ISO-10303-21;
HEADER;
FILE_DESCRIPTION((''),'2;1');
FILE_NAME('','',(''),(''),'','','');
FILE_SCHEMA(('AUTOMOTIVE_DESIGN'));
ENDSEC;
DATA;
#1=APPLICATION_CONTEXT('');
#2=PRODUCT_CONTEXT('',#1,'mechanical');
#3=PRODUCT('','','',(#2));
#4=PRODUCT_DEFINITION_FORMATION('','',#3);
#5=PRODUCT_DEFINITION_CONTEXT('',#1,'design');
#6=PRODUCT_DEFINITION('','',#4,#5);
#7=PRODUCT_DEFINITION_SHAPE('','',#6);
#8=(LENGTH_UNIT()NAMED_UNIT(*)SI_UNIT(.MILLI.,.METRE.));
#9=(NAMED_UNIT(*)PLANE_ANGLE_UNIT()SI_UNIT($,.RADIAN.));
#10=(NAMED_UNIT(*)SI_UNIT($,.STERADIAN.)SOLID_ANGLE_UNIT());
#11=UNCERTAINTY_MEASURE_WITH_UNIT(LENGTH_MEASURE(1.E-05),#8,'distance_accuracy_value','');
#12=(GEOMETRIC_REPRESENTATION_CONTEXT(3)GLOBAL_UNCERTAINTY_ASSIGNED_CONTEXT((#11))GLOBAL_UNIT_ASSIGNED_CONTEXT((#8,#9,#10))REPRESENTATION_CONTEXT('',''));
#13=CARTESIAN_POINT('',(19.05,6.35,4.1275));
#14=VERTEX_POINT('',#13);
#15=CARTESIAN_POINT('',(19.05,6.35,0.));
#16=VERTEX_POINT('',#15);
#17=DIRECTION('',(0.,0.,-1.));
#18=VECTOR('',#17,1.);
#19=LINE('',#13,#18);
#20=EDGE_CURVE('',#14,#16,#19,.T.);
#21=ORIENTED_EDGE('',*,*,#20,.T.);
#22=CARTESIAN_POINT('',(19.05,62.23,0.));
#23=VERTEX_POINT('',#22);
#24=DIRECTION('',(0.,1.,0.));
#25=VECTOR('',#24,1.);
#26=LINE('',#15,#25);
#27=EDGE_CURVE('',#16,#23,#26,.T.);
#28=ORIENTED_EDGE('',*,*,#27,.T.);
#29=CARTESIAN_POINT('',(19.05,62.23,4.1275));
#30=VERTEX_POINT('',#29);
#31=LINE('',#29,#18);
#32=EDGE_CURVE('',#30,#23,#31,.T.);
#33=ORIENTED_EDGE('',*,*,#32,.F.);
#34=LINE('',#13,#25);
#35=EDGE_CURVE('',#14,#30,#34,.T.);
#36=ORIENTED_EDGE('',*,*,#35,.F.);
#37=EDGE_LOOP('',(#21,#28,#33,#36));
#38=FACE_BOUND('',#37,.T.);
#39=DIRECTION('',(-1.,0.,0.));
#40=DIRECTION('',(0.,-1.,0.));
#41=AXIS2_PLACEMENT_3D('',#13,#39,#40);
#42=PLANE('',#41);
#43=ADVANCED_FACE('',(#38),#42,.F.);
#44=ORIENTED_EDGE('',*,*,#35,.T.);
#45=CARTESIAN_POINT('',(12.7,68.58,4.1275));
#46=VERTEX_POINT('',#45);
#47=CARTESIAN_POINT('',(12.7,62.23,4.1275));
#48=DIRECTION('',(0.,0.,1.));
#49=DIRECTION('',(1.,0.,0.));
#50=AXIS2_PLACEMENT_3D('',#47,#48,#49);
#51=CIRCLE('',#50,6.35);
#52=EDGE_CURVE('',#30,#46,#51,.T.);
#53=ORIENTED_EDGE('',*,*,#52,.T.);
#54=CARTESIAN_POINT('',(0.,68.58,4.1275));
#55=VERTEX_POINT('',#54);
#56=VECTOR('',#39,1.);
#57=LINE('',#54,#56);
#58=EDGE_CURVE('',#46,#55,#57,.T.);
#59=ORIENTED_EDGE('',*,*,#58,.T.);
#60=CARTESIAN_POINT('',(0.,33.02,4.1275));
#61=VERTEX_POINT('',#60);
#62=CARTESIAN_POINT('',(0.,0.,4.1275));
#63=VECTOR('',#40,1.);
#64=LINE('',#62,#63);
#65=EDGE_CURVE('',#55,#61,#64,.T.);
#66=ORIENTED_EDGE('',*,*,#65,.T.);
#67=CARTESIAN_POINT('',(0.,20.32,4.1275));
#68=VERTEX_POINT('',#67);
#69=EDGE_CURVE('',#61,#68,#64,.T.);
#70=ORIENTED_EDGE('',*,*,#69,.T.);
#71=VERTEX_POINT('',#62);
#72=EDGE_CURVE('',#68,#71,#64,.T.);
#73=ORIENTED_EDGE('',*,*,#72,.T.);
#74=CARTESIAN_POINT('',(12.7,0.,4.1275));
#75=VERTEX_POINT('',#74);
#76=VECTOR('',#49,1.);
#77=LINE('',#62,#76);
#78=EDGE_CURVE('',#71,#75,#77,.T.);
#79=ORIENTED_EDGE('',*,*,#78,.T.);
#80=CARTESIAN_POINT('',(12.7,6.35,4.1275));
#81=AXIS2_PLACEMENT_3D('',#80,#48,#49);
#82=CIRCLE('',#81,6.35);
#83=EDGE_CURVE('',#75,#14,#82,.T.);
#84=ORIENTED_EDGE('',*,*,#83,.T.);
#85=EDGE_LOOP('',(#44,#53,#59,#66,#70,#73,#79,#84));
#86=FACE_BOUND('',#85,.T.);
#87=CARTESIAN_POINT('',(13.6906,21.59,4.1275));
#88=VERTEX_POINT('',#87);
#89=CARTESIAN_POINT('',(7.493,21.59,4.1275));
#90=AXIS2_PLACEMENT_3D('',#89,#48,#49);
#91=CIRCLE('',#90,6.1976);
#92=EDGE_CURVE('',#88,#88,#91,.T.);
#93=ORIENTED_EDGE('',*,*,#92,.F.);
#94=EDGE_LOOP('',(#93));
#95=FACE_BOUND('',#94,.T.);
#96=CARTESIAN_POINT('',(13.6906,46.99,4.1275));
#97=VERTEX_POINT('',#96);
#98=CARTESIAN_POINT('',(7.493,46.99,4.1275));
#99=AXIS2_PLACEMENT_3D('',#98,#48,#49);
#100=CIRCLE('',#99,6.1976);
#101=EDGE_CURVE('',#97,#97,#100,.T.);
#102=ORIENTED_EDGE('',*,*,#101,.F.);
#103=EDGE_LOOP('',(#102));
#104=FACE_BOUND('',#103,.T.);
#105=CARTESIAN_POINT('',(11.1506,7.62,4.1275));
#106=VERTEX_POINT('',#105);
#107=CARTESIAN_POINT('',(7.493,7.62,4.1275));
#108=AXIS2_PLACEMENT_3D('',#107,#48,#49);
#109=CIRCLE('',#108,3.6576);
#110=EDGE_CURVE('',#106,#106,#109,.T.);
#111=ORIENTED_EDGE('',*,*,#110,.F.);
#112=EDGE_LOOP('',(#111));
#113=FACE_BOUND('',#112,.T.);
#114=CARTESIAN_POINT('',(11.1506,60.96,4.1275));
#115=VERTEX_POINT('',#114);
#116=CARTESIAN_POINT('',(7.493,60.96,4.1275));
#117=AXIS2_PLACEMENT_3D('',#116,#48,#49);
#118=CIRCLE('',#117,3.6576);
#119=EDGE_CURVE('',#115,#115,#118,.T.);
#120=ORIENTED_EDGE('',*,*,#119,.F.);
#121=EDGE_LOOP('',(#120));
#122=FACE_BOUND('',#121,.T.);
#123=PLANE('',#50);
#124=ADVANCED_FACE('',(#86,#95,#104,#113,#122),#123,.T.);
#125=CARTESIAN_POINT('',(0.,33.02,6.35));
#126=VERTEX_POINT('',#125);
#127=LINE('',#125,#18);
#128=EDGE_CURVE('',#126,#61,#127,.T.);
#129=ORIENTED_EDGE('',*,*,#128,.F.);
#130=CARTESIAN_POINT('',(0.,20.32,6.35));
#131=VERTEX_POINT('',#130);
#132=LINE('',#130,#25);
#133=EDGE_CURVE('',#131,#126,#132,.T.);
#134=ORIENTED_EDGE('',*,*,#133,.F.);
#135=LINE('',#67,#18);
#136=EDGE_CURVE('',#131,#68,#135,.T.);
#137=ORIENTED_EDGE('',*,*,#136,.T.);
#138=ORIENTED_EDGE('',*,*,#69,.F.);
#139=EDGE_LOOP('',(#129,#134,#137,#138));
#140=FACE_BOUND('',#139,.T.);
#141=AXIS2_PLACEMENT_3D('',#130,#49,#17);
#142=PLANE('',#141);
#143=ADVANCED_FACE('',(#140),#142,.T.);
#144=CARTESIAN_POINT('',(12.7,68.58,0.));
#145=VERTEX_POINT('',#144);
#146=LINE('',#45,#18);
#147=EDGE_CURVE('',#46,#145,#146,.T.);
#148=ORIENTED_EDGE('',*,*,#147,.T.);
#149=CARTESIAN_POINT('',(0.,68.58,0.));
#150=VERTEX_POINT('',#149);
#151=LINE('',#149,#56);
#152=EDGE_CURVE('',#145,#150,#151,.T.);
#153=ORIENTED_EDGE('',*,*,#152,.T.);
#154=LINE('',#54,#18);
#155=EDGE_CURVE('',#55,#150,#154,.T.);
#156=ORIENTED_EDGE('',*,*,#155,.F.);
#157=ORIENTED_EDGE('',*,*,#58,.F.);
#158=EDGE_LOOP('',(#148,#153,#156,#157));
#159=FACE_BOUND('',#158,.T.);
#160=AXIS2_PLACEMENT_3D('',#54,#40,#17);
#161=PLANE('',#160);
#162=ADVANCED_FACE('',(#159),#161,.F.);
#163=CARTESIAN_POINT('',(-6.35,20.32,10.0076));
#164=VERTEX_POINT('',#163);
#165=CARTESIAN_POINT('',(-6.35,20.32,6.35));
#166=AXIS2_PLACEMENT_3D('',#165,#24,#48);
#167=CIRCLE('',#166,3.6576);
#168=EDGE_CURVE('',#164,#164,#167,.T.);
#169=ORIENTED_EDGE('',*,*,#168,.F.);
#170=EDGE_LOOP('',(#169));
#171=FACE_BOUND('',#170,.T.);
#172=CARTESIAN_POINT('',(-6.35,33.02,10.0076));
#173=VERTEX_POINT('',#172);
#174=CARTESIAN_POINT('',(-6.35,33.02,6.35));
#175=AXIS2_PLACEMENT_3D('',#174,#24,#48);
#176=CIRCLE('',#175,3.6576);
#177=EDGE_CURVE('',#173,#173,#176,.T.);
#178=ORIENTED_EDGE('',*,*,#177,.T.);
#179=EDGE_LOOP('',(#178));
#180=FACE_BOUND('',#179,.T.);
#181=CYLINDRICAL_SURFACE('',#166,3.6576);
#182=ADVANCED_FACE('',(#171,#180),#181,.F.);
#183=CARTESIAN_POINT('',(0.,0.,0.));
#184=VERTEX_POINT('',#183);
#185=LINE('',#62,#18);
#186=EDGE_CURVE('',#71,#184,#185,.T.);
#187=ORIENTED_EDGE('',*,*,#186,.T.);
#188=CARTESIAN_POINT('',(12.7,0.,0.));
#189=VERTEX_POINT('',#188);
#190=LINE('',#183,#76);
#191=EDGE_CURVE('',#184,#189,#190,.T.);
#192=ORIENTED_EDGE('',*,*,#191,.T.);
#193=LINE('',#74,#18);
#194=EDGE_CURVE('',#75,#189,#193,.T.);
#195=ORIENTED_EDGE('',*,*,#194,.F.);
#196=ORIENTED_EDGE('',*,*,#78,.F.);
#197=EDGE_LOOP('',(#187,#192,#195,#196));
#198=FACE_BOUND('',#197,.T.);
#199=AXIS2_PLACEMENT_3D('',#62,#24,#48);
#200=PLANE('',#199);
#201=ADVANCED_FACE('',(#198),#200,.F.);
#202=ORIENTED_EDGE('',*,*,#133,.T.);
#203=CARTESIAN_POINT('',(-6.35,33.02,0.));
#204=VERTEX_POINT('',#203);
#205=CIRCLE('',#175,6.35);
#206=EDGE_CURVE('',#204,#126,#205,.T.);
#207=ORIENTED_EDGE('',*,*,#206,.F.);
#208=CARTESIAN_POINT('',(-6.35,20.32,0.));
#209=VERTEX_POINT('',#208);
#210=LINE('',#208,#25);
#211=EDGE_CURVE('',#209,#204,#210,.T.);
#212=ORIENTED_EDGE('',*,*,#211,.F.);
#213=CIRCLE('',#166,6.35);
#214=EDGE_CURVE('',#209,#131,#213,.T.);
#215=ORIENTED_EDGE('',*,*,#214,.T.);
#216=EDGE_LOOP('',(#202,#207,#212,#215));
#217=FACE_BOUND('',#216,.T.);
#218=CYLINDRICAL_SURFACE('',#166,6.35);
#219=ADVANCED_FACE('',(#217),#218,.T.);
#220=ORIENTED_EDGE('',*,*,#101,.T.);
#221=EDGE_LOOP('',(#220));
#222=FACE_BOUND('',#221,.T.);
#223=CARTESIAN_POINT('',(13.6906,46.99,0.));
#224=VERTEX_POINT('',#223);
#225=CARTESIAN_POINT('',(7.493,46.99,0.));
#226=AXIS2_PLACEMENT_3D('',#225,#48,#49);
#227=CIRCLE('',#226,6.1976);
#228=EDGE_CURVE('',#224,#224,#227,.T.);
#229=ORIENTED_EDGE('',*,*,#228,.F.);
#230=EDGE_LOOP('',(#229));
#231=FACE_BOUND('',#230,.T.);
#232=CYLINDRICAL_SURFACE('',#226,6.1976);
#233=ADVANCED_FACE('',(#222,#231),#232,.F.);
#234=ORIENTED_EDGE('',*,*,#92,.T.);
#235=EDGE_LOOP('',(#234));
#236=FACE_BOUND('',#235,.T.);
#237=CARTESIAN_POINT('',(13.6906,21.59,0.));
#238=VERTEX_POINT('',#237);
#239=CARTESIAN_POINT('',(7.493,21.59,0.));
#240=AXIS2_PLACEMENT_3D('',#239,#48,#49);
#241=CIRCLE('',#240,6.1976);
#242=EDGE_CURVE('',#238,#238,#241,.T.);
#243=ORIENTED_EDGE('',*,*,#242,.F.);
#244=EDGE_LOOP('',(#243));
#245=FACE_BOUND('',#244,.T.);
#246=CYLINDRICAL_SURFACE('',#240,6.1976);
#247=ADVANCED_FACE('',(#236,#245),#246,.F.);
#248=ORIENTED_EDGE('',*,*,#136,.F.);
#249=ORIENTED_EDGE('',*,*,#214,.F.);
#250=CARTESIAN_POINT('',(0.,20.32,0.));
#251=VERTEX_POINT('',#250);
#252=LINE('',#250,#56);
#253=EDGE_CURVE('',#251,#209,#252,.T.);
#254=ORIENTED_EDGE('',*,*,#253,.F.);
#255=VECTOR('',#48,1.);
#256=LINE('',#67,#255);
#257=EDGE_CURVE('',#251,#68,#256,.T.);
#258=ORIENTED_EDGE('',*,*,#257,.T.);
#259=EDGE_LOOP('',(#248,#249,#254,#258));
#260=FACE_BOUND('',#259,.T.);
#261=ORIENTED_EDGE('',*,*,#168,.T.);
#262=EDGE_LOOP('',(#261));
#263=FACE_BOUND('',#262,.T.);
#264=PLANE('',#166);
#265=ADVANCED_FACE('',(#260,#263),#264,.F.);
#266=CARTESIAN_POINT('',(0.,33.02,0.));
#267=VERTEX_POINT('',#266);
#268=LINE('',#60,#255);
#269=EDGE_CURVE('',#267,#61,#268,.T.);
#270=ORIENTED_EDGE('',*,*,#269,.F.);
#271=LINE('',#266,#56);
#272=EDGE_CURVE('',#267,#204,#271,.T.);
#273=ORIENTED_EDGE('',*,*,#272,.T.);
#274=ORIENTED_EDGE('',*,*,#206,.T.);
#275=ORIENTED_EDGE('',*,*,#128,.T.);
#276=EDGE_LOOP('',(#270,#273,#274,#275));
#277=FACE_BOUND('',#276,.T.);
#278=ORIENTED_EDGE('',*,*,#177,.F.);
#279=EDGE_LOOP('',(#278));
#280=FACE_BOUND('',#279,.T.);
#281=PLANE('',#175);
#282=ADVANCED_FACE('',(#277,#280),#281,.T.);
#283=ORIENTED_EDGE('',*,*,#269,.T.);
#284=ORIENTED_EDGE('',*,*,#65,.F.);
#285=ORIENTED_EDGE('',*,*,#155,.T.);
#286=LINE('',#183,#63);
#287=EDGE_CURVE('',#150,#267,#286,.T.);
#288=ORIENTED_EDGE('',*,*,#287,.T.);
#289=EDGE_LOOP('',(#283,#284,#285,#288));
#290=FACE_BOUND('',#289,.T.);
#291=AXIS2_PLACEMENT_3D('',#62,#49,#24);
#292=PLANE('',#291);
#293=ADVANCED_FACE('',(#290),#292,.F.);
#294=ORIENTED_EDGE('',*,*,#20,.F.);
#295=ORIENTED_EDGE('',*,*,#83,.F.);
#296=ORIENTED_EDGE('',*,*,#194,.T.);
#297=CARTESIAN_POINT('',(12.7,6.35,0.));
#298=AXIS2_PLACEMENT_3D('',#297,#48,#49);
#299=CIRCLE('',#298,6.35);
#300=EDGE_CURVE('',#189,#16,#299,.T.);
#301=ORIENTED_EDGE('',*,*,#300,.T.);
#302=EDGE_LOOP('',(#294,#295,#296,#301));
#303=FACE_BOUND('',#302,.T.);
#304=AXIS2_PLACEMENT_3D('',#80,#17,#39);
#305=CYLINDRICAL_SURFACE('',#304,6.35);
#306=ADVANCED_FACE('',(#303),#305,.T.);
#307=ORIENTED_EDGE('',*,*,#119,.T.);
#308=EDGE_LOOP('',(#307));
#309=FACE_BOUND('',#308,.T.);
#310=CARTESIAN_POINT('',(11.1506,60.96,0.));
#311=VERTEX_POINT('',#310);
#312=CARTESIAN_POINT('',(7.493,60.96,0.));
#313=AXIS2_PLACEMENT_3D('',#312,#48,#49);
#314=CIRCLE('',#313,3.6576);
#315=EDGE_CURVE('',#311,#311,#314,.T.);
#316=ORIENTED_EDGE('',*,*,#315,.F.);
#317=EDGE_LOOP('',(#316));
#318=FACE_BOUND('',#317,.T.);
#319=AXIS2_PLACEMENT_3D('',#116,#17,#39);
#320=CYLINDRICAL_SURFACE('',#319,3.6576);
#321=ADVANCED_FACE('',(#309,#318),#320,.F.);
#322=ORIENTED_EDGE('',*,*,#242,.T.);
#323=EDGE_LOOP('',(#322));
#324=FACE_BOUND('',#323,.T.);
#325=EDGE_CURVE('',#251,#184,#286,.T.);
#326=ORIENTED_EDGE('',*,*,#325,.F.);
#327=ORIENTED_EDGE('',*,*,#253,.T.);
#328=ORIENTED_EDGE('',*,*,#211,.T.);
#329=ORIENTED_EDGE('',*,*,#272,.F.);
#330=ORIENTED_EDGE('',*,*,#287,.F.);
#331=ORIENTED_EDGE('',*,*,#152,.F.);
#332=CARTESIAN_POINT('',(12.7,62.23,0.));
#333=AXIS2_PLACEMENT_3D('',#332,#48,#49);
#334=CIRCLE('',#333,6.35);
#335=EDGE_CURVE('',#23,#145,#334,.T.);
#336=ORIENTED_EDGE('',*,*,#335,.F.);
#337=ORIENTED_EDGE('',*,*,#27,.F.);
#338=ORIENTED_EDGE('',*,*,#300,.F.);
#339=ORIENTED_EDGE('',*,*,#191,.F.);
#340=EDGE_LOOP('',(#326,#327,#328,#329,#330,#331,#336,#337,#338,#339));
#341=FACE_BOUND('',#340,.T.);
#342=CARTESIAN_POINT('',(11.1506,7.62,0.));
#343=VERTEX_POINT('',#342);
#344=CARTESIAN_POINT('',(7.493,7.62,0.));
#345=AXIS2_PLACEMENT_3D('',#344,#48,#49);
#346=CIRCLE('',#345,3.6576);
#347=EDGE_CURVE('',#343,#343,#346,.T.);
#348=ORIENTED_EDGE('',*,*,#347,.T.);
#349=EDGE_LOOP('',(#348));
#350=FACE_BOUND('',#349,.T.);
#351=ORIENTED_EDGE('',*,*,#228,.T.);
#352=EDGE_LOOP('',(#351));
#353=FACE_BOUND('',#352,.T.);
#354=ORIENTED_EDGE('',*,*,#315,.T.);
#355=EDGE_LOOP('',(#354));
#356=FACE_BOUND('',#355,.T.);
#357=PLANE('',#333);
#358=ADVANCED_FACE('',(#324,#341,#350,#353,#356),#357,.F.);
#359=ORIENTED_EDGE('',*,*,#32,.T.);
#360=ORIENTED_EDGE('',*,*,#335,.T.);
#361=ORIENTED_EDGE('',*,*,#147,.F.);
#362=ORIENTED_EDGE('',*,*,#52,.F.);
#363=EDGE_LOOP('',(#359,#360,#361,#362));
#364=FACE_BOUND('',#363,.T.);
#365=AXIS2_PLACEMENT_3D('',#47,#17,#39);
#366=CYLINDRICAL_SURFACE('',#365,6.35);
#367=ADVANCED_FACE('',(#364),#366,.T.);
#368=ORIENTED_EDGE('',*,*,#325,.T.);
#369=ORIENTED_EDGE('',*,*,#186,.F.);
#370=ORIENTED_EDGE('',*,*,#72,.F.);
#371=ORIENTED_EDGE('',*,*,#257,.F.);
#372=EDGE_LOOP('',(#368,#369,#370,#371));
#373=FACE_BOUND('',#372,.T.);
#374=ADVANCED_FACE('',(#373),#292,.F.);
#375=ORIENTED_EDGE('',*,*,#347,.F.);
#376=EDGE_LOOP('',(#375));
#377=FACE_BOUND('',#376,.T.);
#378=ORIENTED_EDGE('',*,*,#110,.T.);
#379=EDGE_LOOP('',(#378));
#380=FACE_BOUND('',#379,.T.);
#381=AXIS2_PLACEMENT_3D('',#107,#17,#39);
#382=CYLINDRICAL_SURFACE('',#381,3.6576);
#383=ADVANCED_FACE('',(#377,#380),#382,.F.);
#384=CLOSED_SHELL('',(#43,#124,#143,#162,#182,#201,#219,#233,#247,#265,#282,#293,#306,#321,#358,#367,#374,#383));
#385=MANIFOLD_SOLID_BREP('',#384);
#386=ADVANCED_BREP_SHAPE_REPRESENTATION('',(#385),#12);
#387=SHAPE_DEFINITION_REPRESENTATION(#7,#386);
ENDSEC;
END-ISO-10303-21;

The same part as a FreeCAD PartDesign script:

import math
import FreeCAD as App
import Part
import Sketcher
Q = App.Units.Quantity

doc = App.newDocument("Part")
params = doc.addObject("Spreadsheet::Sheet", "Params")
for row, (alias, value) in enumerate([
    ("sketch1_radius", "0.25 in"),
    ("sketch1_diameter", "0.288 in"),
    ("sketch1_width", "0.5 in"),
    ("sketch1_height", "2.2 in"),
    ("pad1_length", "0.1625 in"),
    ("sketch2_radius", "0.25 in"),
    ("sketch2_diameter", "0.288 in"),
    ("pad2_length", "0.5 in"),
    ("sketch3_diameter", "0.488 in"),
], start=1):
    params.set(f"A{row}", alias)
    params.set(f"B{row}", "=" + value)
    params.setAlias(f"B{row}", alias)

body = doc.addObject("PartDesign::Body", "Body")

# Sketch on XY plane
sketch1 = body.newObject("Sketcher::SketchObject", "Sketch")
sketch1.AttachmentSupport = (doc.getObject("XY_Plane"), [""])
sketch1.MapMode = "FlatFace"
sketch1.addGeometry(Part.LineSegment(App.Vector(0, 0, 0), App.Vector(12.7, 0, 0)), False)
sketch1.addGeometry(Part.ArcOfCircle(Part.Circle(App.Vector(12.7, 6.3, 0), App.Vector(0, 0, 1), 6.3), math.radians(-90), math.radians(0)), False)
sketch1.addGeometry(Part.LineSegment(App.Vector(19.1, 6.3, 0), App.Vector(19.1, 62.2, 0)), False)
sketch1.addGeometry(Part.ArcOfCircle(Part.Circle(App.Vector(12.7, 62.2, 0), App.Vector(0, 0, 1), 6.3), math.radians(0), math.radians(90)), False)
sketch1.addGeometry(Part.LineSegment(App.Vector(12.7, 68.6, 0), App.Vector(0, 68.6, 0)), False)
sketch1.addGeometry(Part.LineSegment(App.Vector(0, 68.6, 0), App.Vector(0, 0, 0)), False)
sketch1.addGeometry(Part.Circle(App.Vector(7.5, 7.6, 0), App.Vector(0, 0, 1), 3.7), False)
sketch1.addGeometry(Part.Circle(App.Vector(7.5, 61, 0), App.Vector(0, 0, 1), 3.7), False)
sketch1.addConstraint(Sketcher.Constraint("Tangent", 0, 2, 1, 1))
sketch1.addConstraint(Sketcher.Constraint("Tangent", 1, 2, 2, 1))
sketch1.addConstraint(Sketcher.Constraint("Tangent", 2, 2, 3, 1))
sketch1.addConstraint(Sketcher.Constraint("Tangent", 3, 2, 4, 1))
sketch1.addConstraint(Sketcher.Constraint("Coincident", 4, 2, 5, 1))
sketch1.addConstraint(Sketcher.Constraint("Coincident", 5, 2, 0, 1))
sketch1.addConstraint(Sketcher.Constraint("Horizontal", 0))
sketch1.addConstraint(Sketcher.Constraint("Vertical", 2))
sketch1.addConstraint(Sketcher.Constraint("Horizontal", 4))
sketch1.addConstraint(Sketcher.Constraint("Vertical", 5))
sketch1.addConstraint(Sketcher.Constraint("Coincident", 5, 2, -1, 1))
sketch1.addConstraint(Sketcher.Constraint("Equal", 1, 3))
sketch1.addConstraint(Sketcher.Constraint("Equal", 6, 7))
sketch1.addConstraint(Sketcher.Constraint("Vertical", 6, 3, 7, 3))
sketch1.addConstraint(Sketcher.Constraint("Radius", 1, Q("0.25 in")))
sketch1.addConstraint(Sketcher.Constraint("Diameter", 6, Q("0.288 in")))
sketch1.addConstraint(Sketcher.Constraint("DistanceX", 0, 1, 0, 2, Q("0.5 in")))
sketch1.addConstraint(Sketcher.Constraint("DistanceY", 2, 1, 2, 2, Q("2.2 in")))
sketch1.addConstraint(Sketcher.Constraint("DistanceY", -1, 1, 6, 3, Q("0.3 in")))
sketch1.addConstraint(Sketcher.Constraint("DistanceY", -1, 1, 7, 3, Q("2.4 in")))
sketch1.addConstraint(Sketcher.Constraint("DistanceX", -1, 1, 6, 3, Q("0.295 in")))
sketch1.setExpression("Constraints[14]", "Params.sketch1_radius")
sketch1.setExpression("Constraints[15]", "Params.sketch1_diameter")
sketch1.setExpression("Constraints[16]", "Params.sketch1_width")
sketch1.setExpression("Constraints[17]", "Params.sketch1_height")
pad1 = body.newObject("PartDesign::Pad", "Pad")
pad1.Profile = sketch1
pad1.setExpression("Length", "Params.pad1_length")

# Sketch on XZ plane
sketch2 = body.newObject("Sketcher::SketchObject", "Sketch001")
sketch2.AttachmentSupport = (doc.getObject("XZ_Plane"), [""])
sketch2.MapMode = "FlatFace"
sketch2.AttachmentOffset = App.Placement(App.Vector(0, 0, -1.3 * 25.4), App.Rotation())
sketch2.addGeometry(Part.LineSegment(App.Vector(0, 0, 0), App.Vector(-6.3, 0, 0)), False)
sketch2.addGeometry(Part.ArcOfCircle(Part.Circle(App.Vector(-6.3, 6.3, 0), App.Vector(0, 0, 1), 6.3), math.radians(0), math.radians(270)), False)
sketch2.addGeometry(Part.LineSegment(App.Vector(0, 6.3, 0), App.Vector(0, 0, 0)), False)
sketch2.addGeometry(Part.Circle(App.Vector(-6.3, 6.3, 0), App.Vector(0, 0, 1), 3.7), False)
sketch2.addConstraint(Sketcher.Constraint("Tangent", 0, 2, 1, 2))
sketch2.addConstraint(Sketcher.Constraint("Tangent", 1, 1, 2, 1))
sketch2.addConstraint(Sketcher.Constraint("Coincident", 2, 2, 0, 1))
sketch2.addConstraint(Sketcher.Constraint("Horizontal", 0))
sketch2.addConstraint(Sketcher.Constraint("Vertical", 2))
sketch2.addConstraint(Sketcher.Constraint("Coincident", 2, 2, -1, 1))
sketch2.addConstraint(Sketcher.Constraint("Coincident", 3, 3, 1, 3))
sketch2.addConstraint(Sketcher.Constraint("Radius", 1, Q("0.25 in")))
sketch2.addConstraint(Sketcher.Constraint("Diameter", 3, Q("0.288 in")))
sketch2.setExpression("Constraints[7]", "Params.sketch2_radius")
sketch2.setExpression("Constraints[8]", "Params.sketch2_diameter")
pad2 = body.newObject("PartDesign::Pad", "Pad001")
pad2.Profile = sketch2
pad2.setExpression("Length", "Params.pad2_length")

# Sketch on XY plane
sketch3 = body.newObject("Sketcher::SketchObject", "Sketch002")
sketch3.AttachmentSupport = (doc.getObject("XY_Plane"), [""])
sketch3.MapMode = "FlatFace"
sketch3.AttachmentOffset = App.Placement(App.Vector(0, 0, 0.1625 * 25.4), App.Rotation())
sketch3.addGeometry(Part.Circle(App.Vector(7, 47, 0), App.Vector(0, 0, 1), 6), False)
sketch3.addGeometry(Part.Circle(App.Vector(7, 22, 0), App.Vector(0, 0, 1), 6), False)
sketch3.addConstraint(Sketcher.Constraint("Equal", 0, 1))
sketch3.addConstraint(Sketcher.Constraint("Vertical", 0, 3, 1, 3))
sketch3.addConstraint(Sketcher.Constraint("Diameter", 0, Q("0.488 in")))
sketch3.addConstraint(Sketcher.Constraint("DistanceY", 1, 3, 0, 3, Q("1 in")))
sketch3.addConstraint(Sketcher.Constraint("DistanceY", -1, 1, 0, 3, Q("1.85 in")))
sketch3.addConstraint(Sketcher.Constraint("DistanceX", -1, 1, 0, 3, Q("0.295 in")))
sketch3.setExpression("Constraints[2]", "Params.sketch3_diameter")
pocket1 = body.newObject("PartDesign::Pocket", "Pocket")
pocket1.Profile = sketch3
pocket1.Type = "ThroughAll"

doc.recompute()
